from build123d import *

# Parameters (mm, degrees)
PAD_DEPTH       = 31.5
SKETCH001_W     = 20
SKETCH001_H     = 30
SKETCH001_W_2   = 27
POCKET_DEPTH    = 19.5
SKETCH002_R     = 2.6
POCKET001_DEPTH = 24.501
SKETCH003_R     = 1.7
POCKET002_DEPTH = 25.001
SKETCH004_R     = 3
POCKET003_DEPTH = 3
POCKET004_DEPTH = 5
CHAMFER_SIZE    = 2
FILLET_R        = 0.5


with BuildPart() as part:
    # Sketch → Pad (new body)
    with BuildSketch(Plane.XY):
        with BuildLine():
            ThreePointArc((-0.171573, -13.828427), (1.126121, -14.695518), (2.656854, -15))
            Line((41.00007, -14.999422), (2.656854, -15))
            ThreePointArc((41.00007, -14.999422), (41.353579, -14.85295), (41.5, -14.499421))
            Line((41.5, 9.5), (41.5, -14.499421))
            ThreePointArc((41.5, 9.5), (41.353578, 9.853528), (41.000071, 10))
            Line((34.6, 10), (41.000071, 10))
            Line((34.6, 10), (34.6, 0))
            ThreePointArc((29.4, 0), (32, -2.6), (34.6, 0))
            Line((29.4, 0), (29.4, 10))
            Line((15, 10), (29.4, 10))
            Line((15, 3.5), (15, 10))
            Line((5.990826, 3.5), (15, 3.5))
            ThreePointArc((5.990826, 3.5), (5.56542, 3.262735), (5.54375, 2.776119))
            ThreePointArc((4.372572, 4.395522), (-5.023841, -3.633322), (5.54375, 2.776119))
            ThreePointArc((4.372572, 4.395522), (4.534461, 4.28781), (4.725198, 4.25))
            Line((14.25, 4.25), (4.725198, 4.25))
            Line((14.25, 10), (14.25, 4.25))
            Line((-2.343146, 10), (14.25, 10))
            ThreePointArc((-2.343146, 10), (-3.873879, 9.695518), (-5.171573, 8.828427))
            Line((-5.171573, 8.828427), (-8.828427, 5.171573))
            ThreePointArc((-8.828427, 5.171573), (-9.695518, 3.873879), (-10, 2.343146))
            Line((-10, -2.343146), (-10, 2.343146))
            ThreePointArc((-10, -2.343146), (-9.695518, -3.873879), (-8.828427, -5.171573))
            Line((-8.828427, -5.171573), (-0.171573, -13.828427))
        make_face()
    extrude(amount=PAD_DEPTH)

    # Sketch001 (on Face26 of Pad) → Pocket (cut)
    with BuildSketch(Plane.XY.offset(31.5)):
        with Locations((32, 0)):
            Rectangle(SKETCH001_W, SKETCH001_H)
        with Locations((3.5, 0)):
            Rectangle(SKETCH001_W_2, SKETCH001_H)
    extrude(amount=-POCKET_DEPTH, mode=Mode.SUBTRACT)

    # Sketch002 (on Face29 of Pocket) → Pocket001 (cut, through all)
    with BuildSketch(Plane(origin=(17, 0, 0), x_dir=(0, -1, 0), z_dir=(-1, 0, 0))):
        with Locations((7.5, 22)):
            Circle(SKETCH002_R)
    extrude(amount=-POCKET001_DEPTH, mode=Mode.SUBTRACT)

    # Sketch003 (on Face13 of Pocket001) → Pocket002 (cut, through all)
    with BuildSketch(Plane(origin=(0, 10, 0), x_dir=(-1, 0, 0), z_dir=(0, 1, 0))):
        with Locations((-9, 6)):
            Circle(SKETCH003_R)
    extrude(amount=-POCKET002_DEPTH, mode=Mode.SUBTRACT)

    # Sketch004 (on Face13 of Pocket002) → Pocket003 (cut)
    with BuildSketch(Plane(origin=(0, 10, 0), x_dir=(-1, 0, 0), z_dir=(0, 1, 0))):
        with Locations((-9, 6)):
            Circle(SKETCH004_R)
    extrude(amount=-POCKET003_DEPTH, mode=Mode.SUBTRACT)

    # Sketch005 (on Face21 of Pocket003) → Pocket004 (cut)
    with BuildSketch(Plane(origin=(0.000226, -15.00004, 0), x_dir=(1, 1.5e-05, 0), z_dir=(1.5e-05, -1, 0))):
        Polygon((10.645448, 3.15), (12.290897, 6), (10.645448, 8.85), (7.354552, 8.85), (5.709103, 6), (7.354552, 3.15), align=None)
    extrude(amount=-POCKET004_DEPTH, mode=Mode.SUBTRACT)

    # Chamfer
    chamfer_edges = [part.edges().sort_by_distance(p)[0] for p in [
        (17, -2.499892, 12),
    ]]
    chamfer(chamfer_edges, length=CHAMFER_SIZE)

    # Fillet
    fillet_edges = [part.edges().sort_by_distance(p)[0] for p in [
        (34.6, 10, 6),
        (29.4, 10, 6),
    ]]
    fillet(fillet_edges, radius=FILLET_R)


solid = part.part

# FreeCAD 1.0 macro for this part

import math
import FreeCAD as App
import Part
import Sketcher
from FreeCAD import Vector
Q = App.Units.Quantity


def edges_at(feature, points):
    """Names of the edges that pass closest to the given points."""
    edges = feature.Shape.Edges
    near = lambda p: min(range(len(edges)), key=lambda i: edges[i].distToShape(Part.Vertex(*p))[0])
    return sorted({f"Edge{near(p) + 1}" for p in points})

doc = App.newDocument("Part")
params = doc.addObject("Spreadsheet::Sheet", "Params")
for row, (alias, value) in enumerate([
    ("sketch1_radius", "0.5 mm"),
    ("sketch1_radius2", "2.6 mm"),
    ("sketch1_radius3", "6.2 mm"),
    ("sketch1_height", "10 mm"),
    ("sketch1_width", "14.4 mm"),
    ("pad1_length", "31.5 mm"),
    ("sketch2_width", "20 mm"),
    ("sketch2_width2", "27 mm"),
    ("sketch2_height", "30 mm"),
    ("pocket1_length", "19.5 mm"),
    ("sketch3_diameter", "5.2 mm"),
    ("sketch4_diameter", "3.4 mm"),
    ("sketch5_diameter", "6 mm"),
    ("pocket4_length", "3 mm"),
    ("pocket5_length", "5 mm"),
    ("chamfer_size", "2 mm"),
    ("fillet_radius", "0.5 mm"),
], start=1):
    params.set(f"A{row}", alias)
    params.set(f"B{row}", "=" + value)
    params.setAlias(f"B{row}", alias)

body = doc.addObject("PartDesign::Body", "Body")

sketch1 = doc.addObject("Sketcher::SketchObject", "Sketch")
body.addObject(sketch1)
sketch1.AttachmentSupport = (doc.XY_Plane, [""])
sketch1.MapMode = "FlatFace"
sketch1.addGeometry([
    Part.ArcOfCircle(Part.Circle(Vector(2.656856, -10.999996, 0), Vector(0, 0, 1), 4.000004), math.radians(-134.999981), math.radians(-90.000025)),
    Part.LineSegment(Vector(2.656854, -15, 0), Vector(41.00007, -14.999422, 0)),
    Part.ArcOfCircle(Part.Circle(Vector(41, -14.499422, 0), Vector(0, 0, 1), 0.5), math.radians(-89.992021), math.radians(0.000157)),
    Part.LineSegment(Vector(41.5, -14.499421, 0), Vector(41.5, 9.5, 0)),
    Part.ArcOfCircle(Part.Circle(Vector(40.999999, 9.499999, 0), Vector(0, 0, 1), 0.500001), math.radians(0.000153), math.radians(89.991711)),
    Part.LineSegment(Vector(41.000071, 10, 0), Vector(34.6, 10, 0)),
    Part.LineSegment(Vector(34.6, 10, 0), Vector(34.6, 0, 0)),
    Part.ArcOfCircle(Part.Circle(Vector(32, 0, 0), Vector(0, 0, 1), 2.6), math.radians(180), math.radians(360)),
    Part.LineSegment(Vector(29.4, 0, 0), Vector(29.4, 10, 0)),
    Part.LineSegment(Vector(29.4, 10, 0), Vector(15, 10, 0)),
    Part.LineSegment(Vector(15, 10, 0), Vector(15, 3.5, 0)),
    Part.LineSegment(Vector(15, 3.5, 0), Vector(5.990826, 3.5, 0)),
    Part.ArcOfCircle(Part.Circle(Vector(5.990826, 3, 0), Vector(0, 0, 1), 0.5), math.radians(89.999988), math.radians(206.600243)),
    Part.ArcOfCircle(Part.Circle(Vector(0, 0, 0), Vector(0, 0, 1), 6.2), math.radians(45.149971), math.radians(386.600134)),
    Part.ArcOfCircle(Part.Circle(Vector(4.725197, 4.749996, 0), Vector(0, 0, 1), 0.499996), math.radians(-134.850158), math.radians(-89.999847)),
    Part.LineSegment(Vector(4.725198, 4.25, 0), Vector(14.25, 4.25, 0)),
    Part.LineSegment(Vector(14.25, 4.25, 0), Vector(14.25, 10, 0)),
    Part.LineSegment(Vector(14.25, 10, 0), Vector(-2.343146, 10, 0)),
    Part.ArcOfCircle(Part.Circle(Vector(-2.343144, 5.999996, 0), Vector(0, 0, 1), 4.000004), math.radians(90.000025), math.radians(134.999981)),
    Part.LineSegment(Vector(-5.171573, 8.828427, 0), Vector(-8.828427, 5.171573, 0)),
    Part.ArcOfCircle(Part.Circle(Vector(-5.999996, 2.343144, 0), Vector(0, 0, 1), 4.000004), math.radians(135.000019), math.radians(179.999975)),
    Part.LineSegment(Vector(-10, 2.343146, 0), Vector(-10, -2.343146, 0)),
    Part.ArcOfCircle(Part.Circle(Vector(-5.999996, -2.343144, 0), Vector(0, 0, 1), 4.000004), math.radians(-179.999975), math.radians(-135.000019)),
    Part.LineSegment(Vector(-8.828427, -5.171573, 0), Vector(-0.171573, -13.828427, 0)),
], False)
sketch1.addConstraint([
    Sketcher.Constraint("Coincident", 0, 2, 1, 1),
    Sketcher.Constraint("Coincident", 1, 2, 2, 1),
    Sketcher.Constraint("Coincident", 2, 2, 3, 1),
    Sketcher.Constraint("Coincident", 3, 2, 4, 1),
    Sketcher.Constraint("Coincident", 4, 2, 5, 1),
    Sketcher.Constraint("Coincident", 5, 2, 6, 1),
    Sketcher.Constraint("Tangent", 6, 2, 7, 2),
    Sketcher.Constraint("Tangent", 7, 1, 8, 1),
    Sketcher.Constraint("Coincident", 8, 2, 9, 1),
    Sketcher.Constraint("Coincident", 9, 2, 10, 1),
    Sketcher.Constraint("Coincident", 10, 2, 11, 1),
    Sketcher.Constraint("Tangent", 11, 2, 12, 1),
    Sketcher.Constraint("Tangent", 12, 2, 13, 2),
    Sketcher.Constraint("Coincident", 13, 1, 14, 1),
    Sketcher.Constraint("Coincident", 14, 2, 15, 1),
    Sketcher.Constraint("Coincident", 15, 2, 16, 1),
    Sketcher.Constraint("Coincident", 16, 2, 17, 1),
    Sketcher.Constraint("Tangent", 17, 2, 18, 1),
    Sketcher.Constraint("Tangent", 18, 2, 19, 1),
    Sketcher.Constraint("Tangent", 19, 2, 20, 1),
    Sketcher.Constraint("Tangent", 20, 2, 21, 1),
    Sketcher.Constraint("Tangent", 21, 2, 22, 1),
    Sketcher.Constraint("Tangent", 22, 2, 23, 1),
    Sketcher.Constraint("Tangent", 23, 2, 0, 1),
    Sketcher.Constraint("Vertical", 3),
    Sketcher.Constraint("Horizontal", 5),
    Sketcher.Constraint("Vertical", 6),
    Sketcher.Constraint("Vertical", 8),
    Sketcher.Constraint("Horizontal", 9),
    Sketcher.Constraint("Vertical", 10),
    Sketcher.Constraint("Horizontal", 11),
    Sketcher.Constraint("Horizontal", 15),
    Sketcher.Constraint("Vertical", 16),
    Sketcher.Constraint("Horizontal", 17),
    Sketcher.Constraint("Vertical", 21),
    Sketcher.Constraint("Coincident", 13, 3, -1, 1),
    Sketcher.Constraint("Equal", 2, 4),
    Sketcher.Constraint("Equal", 4, 12),
    Sketcher.Constraint("Equal", 0, 18),
    Sketcher.Constraint("Equal", 18, 20),
    Sketcher.Constraint("Equal", 20, 22),
    Sketcher.Constraint("Symmetric", 19, 2, 22, 2, -1),
    Sketcher.Constraint("PointOnObject", 7, 3, -1),
    Sketcher.Constraint("Perpendicular", 19, 23),
    Sketcher.Constraint("Horizontal", 4, 3, 3, 2),
    Sketcher.Constraint("Horizontal", 5, 2, 8, 2),
    Sketcher.Constraint("Horizontal", 9, 2, 16, 2),
    Sketcher.Constraint("Vertical", 1, 2, 4, 2),
    Sketcher.Constraint("Radius", 2, Q("0.5 mm")),
    Sketcher.Constraint("Radius", 7, Q("2.6 mm")),
    Sketcher.Constraint("Radius", 13, Q("6.2 mm")),
    Sketcher.Constraint("DistanceY", 6, 2, 6, 1, Q("10 mm")),
    Sketcher.Constraint("DistanceX", 9, 2, 9, 1, Q("14.4 mm")),
    Sketcher.Constraint("DistanceY", 10, 2, 10, 1, Q("6.5 mm")),
    Sketcher.Constraint("DistanceX", -1, 1, 2, 3, Q("41 mm")),
    Sketcher.Constraint("DistanceX", -1, 1, 7, 3, Q("32 mm")),
    Sketcher.Constraint("DistanceY", 0, 2, -1, 1, Q("15 mm")),
    Sketcher.Constraint("DistanceX", 20, 2, -1, 1, Q("10 mm")),
    Sketcher.Constraint("DistanceY", 16, 1, 16, 2, Q("5.75 mm")),
    Sketcher.Constraint("DistanceY", 1, 2, 2, 2, Q("0.500001 mm")),
    Sketcher.Constraint("DistanceX", -1, 1, 15, 2, Q("14.25 mm")),
    Sketcher.Constraint("DistanceY", 14, 3, 18, 3, Q("1.25 mm")),
    Sketcher.Constraint("Radius", 0, Q("4.000004 mm")),
    Sketcher.Constraint("DistanceX", 5, 2, 5, 1, Q("6.400071 mm")),
    Sketcher.Constraint("DistanceY", 3, 1, 3, 2, Q("23.999421 mm")),
    Sketcher.Constraint("Distance", 23, Q("12.24264 mm")),
    Sketcher.Constraint("DistanceX", 15, 1, 15, 2, Q("9.524802 mm")),
    Sketcher.Constraint("DistanceX", 22, 3, 0, 2, Q("8.65685 mm")),
    Sketcher.Constraint("DistanceX", 13, 1, 12, 2, Q("1.171178 mm")),
])
sketch1.setExpression("Constraints[48]", "Params.sketch1_radius")
sketch1.setExpression("Constraints[49]", "Params.sketch1_radius2")
sketch1.setExpression("Constraints[50]", "Params.sketch1_radius3")
sketch1.setExpression("Constraints[51]", "Params.sketch1_height")
sketch1.setExpression("Constraints[52]", "Params.sketch1_width")
pad1 = doc.addObject("PartDesign::Pad", "Pad")
body.addObject(pad1)
pad1.Profile = sketch1
pad1.setExpression("Length", "Params.pad1_length")

sketch2 = doc.addObject("Sketcher::SketchObject", "Sketch001")
body.addObject(sketch2)
sketch2.AttachmentSupport = (doc.XY_Plane, [""])
sketch2.MapMode = "FlatFace"
sketch2.AttachmentOffset = App.Placement(Vector(0, 0, 31.5), App.Rotation())
sketch2.addGeometry([
    Part.LineSegment(Vector(22, 15, 0), Vector(22, -15, 0)),
    Part.LineSegment(Vector(22, -15, 0), Vector(42, -15, 0)),
    Part.LineSegment(Vector(42, -15, 0), Vector(42, 15, 0)),
    Part.LineSegment(Vector(42, 15, 0), Vector(22, 15, 0)),
    Part.LineSegment(Vector(-10, 15, 0), Vector(-10, -15, 0)),
    Part.LineSegment(Vector(-10, -15, 0), Vector(17, -15, 0)),
    Part.LineSegment(Vector(17, -15, 0), Vector(17, 15, 0)),
    Part.LineSegment(Vector(17, 15, 0), Vector(-10, 15, 0)),
], False)
sketch2.addConstraint([
    Sketcher.Constraint("Coincident", 0, 2, 1, 1),
    Sketcher.Constraint("Coincident", 1, 2, 2, 1),
    Sketcher.Constraint("Coincident", 2, 2, 3, 1),
    Sketcher.Constraint("Coincident", 3, 2, 0, 1),
    Sketcher.Constraint("Coincident", 4, 2, 5, 1),
    Sketcher.Constraint("Coincident", 5, 2, 6, 1),
    Sketcher.Constraint("Coincident", 6, 2, 7, 1),
    Sketcher.Constraint("Coincident", 7, 2, 4, 1),
    Sketcher.Constraint("Vertical", 0),
    Sketcher.Constraint("Horizontal", 1),
    Sketcher.Constraint("Vertical", 2),
    Sketcher.Constraint("Horizontal", 3),
    Sketcher.Constraint("Vertical", 4),
    Sketcher.Constraint("Horizontal", 5),
    Sketcher.Constraint("Vertical", 6),
    Sketcher.Constraint("Horizontal", 7),
    Sketcher.Constraint("Horizontal", 1, 2, 4, 2),
    Sketcher.Constraint("Horizontal", 3, 2, 6, 2),
    Sketcher.Constraint("DistanceX", 1, 1, 1, 2, Q("20 mm")),
    Sketcher.Constraint("DistanceX", 5, 1, 5, 2, Q("27 mm")),
    Sketcher.Constraint("DistanceY", 0, 2, 0, 1, Q("30 mm")),
    Sketcher.Constraint("DistanceX", -1, 1, 0, 2, Q("22 mm")),
    Sketcher.Constraint("DistanceY", 0, 2, -1, 1, Q("15 mm")),
    Sketcher.Constraint("DistanceX", 4, 2, -1, 1, Q("10 mm")),
])
sketch2.setExpression("Constraints[18]", "Params.sketch2_width")
sketch2.setExpression("Constraints[19]", "Params.sketch2_width2")
sketch2.setExpression("Constraints[20]", "Params.sketch2_height")
pocket1 = doc.addObject("PartDesign::Pocket", "Pocket")
body.addObject(pocket1)
pocket1.Profile = sketch2
pocket1.setExpression("Length", "Params.pocket1_length")

sketch3 = doc.addObject("Sketcher::SketchObject", "Sketch002")
body.addObject(sketch3)
sketch3.AttachmentSupport = (doc.YZ_Plane, [""])
sketch3.MapMode = "FlatFace"
sketch3.AttachmentOffset = App.Placement(Vector(0, 0, 17), App.Rotation())
sketch3.addGeometry(Part.Circle(Vector(-7.5, 22, 0), Vector(0, 0, 1), 2.6), False)
sketch3.addConstraint([
    Sketcher.Constraint("Diameter", 0, Q("5.2 mm")),
    Sketcher.Constraint("DistanceY", -1, 1, 0, 3, Q("22 mm")),
    Sketcher.Constraint("DistanceX", 0, 3, -1, 1, Q("7.5 mm")),
])
sketch3.setExpression("Constraints[0]", "Params.sketch3_diameter")
pocket2 = doc.addObject("PartDesign::Pocket", "Pocket001")
body.addObject(pocket2)
pocket2.Profile = sketch3
pocket2.Type = "ThroughAll"
pocket2.Reversed = True

sketch4 = doc.addObject("Sketcher::SketchObject", "Sketch003")
body.addObject(sketch4)
sketch4.AttachmentSupport = (doc.XZ_Plane, [""])
sketch4.MapMode = "FlatFace"
sketch4.AttachmentOffset = App.Placement(Vector(0, 0, -10), App.Rotation())
sketch4.addGeometry(Part.Circle(Vector(9, 6, 0), Vector(0, 0, 1), 1.7), False)
sketch4.addConstraint([
    Sketcher.Constraint("Diameter", 0, Q("3.4 mm")),
    Sketcher.Constraint("DistanceX", -1, 1, 0, 3, Q("9 mm")),
    Sketcher.Constraint("DistanceY", -1, 1, 0, 3, Q("6 mm")),
])
sketch4.setExpression("Constraints[0]", "Params.sketch4_diameter")
pocket3 = doc.addObject("PartDesign::Pocket", "Pocket002")
body.addObject(pocket3)
pocket3.Profile = sketch4
pocket3.Type = "ThroughAll"
pocket3.Reversed = True

sketch5 = doc.addObject("Sketcher::SketchObject", "Sketch004")
body.addObject(sketch5)
sketch5.AttachmentSupport = (doc.XZ_Plane, [""])
sketch5.MapMode = "FlatFace"
sketch5.AttachmentOffset = App.Placement(Vector(0, 0, -10), App.Rotation())
sketch5.addGeometry(Part.Circle(Vector(9, 6, 0), Vector(0, 0, 1), 3), False)
sketch5.addConstraint([
    Sketcher.Constraint("Diameter", 0, Q("6 mm")),
    Sketcher.Constraint("DistanceX", -1, 1, 0, 3, Q("9 mm")),
    Sketcher.Constraint("DistanceY", -1, 1, 0, 3, Q("6 mm")),
])
sketch5.setExpression("Constraints[0]", "Params.sketch5_diameter")
pocket4 = doc.addObject("PartDesign::Pocket", "Pocket003")
body.addObject(pocket4)
pocket4.Profile = sketch5
pocket4.setExpression("Length", "Params.pocket4_length")
pocket4.Reversed = True

sketch6 = doc.addObject("Sketcher::SketchObject", "Sketch005")
body.addObject(sketch6)
sketch6.AttachmentSupport = (doc.XZ_Plane, [""])
sketch6.MapMode = "FlatFace"
sketch6.AttachmentOffset = App.Placement(Vector(0, 0, 15.00004), App.Rotation())
sketch6.addGeometry([
    Part.LineSegment(Vector(10.645674, 3.15, 0), Vector(12.291123, 6, 0)),
    Part.LineSegment(Vector(12.291123, 6, 0), Vector(10.645674, 8.85, 0)),
    Part.LineSegment(Vector(10.645674, 8.85, 0), Vector(7.354778, 8.85, 0)),
    Part.LineSegment(Vector(7.354778, 8.85, 0), Vector(5.709329, 6, 0)),
    Part.LineSegment(Vector(5.709329, 6, 0), Vector(7.354778, 3.15, 0)),
    Part.LineSegment(Vector(7.354778, 3.15, 0), Vector(10.645674, 3.15, 0)),
], False)
sketch6.addConstraint([
    Sketcher.Constraint("Coincident", 0, 2, 1, 1),
    Sketcher.Constraint("Coincident", 1, 2, 2, 1),
    Sketcher.Constraint("Coincident", 2, 2, 3, 1),
    Sketcher.Constraint("Coincident", 3, 2, 4, 1),
    Sketcher.Constraint("Coincident", 4, 2, 5, 1),
    Sketcher.Constraint("Coincident", 5, 2, 0, 1),
    Sketcher.Constraint("Horizontal", 2),
    Sketcher.Constraint("Horizontal", 5),
    Sketcher.Constraint("Parallel", 0, 3),
    Sketcher.Constraint("Parallel", 1, 4),
    Sketcher.Constraint("Horizontal", 0, 2, 3, 2),
    Sketcher.Constraint("Vertical", 2, 2, 4, 2),
    Sketcher.Constraint("Vertical", 1, 2, 5, 2),
    Sketcher.Constraint("Angle", 0, Q("59.999989 deg")),
    Sketcher.Constraint("DistanceY", -1, 1, 0, 2, Q("6 mm")),
    Sketcher.Constraint("DistanceY", 4, 2, 2, 2, Q("5.7 mm")),
    Sketcher.Constraint("DistanceX", 2, 2, 2, 1, Q("3.290896 mm")),
    Sketcher.Constraint("DistanceX", -1, 1, 3, 2, Q("5.709329 mm")),
])
pocket5 = doc.addObject("PartDesign::Pocket", "Pocket004")
body.addObject(pocket5)
pocket5.Profile = sketch6
pocket5.setExpression("Length", "Params.pocket5_length")
doc.recompute()

chamfer = doc.addObject("PartDesign::Chamfer", "Chamfer")
body.addObject(chamfer)
chamfer.Base = (pocket5, edges_at(pocket5, [(17, -2.5, 12)]))
chamfer.setExpression("Size", "Params.chamfer_size")
doc.recompute()

fillet = doc.addObject("PartDesign::Fillet", "Fillet")
body.addObject(fillet)
fillet.Base = (chamfer, edges_at(chamfer, [(34.6, 10, 6), (29.4, 10, 6)]))
fillet.setExpression("Radius", "Params.fillet_radius")

doc.recompute()
